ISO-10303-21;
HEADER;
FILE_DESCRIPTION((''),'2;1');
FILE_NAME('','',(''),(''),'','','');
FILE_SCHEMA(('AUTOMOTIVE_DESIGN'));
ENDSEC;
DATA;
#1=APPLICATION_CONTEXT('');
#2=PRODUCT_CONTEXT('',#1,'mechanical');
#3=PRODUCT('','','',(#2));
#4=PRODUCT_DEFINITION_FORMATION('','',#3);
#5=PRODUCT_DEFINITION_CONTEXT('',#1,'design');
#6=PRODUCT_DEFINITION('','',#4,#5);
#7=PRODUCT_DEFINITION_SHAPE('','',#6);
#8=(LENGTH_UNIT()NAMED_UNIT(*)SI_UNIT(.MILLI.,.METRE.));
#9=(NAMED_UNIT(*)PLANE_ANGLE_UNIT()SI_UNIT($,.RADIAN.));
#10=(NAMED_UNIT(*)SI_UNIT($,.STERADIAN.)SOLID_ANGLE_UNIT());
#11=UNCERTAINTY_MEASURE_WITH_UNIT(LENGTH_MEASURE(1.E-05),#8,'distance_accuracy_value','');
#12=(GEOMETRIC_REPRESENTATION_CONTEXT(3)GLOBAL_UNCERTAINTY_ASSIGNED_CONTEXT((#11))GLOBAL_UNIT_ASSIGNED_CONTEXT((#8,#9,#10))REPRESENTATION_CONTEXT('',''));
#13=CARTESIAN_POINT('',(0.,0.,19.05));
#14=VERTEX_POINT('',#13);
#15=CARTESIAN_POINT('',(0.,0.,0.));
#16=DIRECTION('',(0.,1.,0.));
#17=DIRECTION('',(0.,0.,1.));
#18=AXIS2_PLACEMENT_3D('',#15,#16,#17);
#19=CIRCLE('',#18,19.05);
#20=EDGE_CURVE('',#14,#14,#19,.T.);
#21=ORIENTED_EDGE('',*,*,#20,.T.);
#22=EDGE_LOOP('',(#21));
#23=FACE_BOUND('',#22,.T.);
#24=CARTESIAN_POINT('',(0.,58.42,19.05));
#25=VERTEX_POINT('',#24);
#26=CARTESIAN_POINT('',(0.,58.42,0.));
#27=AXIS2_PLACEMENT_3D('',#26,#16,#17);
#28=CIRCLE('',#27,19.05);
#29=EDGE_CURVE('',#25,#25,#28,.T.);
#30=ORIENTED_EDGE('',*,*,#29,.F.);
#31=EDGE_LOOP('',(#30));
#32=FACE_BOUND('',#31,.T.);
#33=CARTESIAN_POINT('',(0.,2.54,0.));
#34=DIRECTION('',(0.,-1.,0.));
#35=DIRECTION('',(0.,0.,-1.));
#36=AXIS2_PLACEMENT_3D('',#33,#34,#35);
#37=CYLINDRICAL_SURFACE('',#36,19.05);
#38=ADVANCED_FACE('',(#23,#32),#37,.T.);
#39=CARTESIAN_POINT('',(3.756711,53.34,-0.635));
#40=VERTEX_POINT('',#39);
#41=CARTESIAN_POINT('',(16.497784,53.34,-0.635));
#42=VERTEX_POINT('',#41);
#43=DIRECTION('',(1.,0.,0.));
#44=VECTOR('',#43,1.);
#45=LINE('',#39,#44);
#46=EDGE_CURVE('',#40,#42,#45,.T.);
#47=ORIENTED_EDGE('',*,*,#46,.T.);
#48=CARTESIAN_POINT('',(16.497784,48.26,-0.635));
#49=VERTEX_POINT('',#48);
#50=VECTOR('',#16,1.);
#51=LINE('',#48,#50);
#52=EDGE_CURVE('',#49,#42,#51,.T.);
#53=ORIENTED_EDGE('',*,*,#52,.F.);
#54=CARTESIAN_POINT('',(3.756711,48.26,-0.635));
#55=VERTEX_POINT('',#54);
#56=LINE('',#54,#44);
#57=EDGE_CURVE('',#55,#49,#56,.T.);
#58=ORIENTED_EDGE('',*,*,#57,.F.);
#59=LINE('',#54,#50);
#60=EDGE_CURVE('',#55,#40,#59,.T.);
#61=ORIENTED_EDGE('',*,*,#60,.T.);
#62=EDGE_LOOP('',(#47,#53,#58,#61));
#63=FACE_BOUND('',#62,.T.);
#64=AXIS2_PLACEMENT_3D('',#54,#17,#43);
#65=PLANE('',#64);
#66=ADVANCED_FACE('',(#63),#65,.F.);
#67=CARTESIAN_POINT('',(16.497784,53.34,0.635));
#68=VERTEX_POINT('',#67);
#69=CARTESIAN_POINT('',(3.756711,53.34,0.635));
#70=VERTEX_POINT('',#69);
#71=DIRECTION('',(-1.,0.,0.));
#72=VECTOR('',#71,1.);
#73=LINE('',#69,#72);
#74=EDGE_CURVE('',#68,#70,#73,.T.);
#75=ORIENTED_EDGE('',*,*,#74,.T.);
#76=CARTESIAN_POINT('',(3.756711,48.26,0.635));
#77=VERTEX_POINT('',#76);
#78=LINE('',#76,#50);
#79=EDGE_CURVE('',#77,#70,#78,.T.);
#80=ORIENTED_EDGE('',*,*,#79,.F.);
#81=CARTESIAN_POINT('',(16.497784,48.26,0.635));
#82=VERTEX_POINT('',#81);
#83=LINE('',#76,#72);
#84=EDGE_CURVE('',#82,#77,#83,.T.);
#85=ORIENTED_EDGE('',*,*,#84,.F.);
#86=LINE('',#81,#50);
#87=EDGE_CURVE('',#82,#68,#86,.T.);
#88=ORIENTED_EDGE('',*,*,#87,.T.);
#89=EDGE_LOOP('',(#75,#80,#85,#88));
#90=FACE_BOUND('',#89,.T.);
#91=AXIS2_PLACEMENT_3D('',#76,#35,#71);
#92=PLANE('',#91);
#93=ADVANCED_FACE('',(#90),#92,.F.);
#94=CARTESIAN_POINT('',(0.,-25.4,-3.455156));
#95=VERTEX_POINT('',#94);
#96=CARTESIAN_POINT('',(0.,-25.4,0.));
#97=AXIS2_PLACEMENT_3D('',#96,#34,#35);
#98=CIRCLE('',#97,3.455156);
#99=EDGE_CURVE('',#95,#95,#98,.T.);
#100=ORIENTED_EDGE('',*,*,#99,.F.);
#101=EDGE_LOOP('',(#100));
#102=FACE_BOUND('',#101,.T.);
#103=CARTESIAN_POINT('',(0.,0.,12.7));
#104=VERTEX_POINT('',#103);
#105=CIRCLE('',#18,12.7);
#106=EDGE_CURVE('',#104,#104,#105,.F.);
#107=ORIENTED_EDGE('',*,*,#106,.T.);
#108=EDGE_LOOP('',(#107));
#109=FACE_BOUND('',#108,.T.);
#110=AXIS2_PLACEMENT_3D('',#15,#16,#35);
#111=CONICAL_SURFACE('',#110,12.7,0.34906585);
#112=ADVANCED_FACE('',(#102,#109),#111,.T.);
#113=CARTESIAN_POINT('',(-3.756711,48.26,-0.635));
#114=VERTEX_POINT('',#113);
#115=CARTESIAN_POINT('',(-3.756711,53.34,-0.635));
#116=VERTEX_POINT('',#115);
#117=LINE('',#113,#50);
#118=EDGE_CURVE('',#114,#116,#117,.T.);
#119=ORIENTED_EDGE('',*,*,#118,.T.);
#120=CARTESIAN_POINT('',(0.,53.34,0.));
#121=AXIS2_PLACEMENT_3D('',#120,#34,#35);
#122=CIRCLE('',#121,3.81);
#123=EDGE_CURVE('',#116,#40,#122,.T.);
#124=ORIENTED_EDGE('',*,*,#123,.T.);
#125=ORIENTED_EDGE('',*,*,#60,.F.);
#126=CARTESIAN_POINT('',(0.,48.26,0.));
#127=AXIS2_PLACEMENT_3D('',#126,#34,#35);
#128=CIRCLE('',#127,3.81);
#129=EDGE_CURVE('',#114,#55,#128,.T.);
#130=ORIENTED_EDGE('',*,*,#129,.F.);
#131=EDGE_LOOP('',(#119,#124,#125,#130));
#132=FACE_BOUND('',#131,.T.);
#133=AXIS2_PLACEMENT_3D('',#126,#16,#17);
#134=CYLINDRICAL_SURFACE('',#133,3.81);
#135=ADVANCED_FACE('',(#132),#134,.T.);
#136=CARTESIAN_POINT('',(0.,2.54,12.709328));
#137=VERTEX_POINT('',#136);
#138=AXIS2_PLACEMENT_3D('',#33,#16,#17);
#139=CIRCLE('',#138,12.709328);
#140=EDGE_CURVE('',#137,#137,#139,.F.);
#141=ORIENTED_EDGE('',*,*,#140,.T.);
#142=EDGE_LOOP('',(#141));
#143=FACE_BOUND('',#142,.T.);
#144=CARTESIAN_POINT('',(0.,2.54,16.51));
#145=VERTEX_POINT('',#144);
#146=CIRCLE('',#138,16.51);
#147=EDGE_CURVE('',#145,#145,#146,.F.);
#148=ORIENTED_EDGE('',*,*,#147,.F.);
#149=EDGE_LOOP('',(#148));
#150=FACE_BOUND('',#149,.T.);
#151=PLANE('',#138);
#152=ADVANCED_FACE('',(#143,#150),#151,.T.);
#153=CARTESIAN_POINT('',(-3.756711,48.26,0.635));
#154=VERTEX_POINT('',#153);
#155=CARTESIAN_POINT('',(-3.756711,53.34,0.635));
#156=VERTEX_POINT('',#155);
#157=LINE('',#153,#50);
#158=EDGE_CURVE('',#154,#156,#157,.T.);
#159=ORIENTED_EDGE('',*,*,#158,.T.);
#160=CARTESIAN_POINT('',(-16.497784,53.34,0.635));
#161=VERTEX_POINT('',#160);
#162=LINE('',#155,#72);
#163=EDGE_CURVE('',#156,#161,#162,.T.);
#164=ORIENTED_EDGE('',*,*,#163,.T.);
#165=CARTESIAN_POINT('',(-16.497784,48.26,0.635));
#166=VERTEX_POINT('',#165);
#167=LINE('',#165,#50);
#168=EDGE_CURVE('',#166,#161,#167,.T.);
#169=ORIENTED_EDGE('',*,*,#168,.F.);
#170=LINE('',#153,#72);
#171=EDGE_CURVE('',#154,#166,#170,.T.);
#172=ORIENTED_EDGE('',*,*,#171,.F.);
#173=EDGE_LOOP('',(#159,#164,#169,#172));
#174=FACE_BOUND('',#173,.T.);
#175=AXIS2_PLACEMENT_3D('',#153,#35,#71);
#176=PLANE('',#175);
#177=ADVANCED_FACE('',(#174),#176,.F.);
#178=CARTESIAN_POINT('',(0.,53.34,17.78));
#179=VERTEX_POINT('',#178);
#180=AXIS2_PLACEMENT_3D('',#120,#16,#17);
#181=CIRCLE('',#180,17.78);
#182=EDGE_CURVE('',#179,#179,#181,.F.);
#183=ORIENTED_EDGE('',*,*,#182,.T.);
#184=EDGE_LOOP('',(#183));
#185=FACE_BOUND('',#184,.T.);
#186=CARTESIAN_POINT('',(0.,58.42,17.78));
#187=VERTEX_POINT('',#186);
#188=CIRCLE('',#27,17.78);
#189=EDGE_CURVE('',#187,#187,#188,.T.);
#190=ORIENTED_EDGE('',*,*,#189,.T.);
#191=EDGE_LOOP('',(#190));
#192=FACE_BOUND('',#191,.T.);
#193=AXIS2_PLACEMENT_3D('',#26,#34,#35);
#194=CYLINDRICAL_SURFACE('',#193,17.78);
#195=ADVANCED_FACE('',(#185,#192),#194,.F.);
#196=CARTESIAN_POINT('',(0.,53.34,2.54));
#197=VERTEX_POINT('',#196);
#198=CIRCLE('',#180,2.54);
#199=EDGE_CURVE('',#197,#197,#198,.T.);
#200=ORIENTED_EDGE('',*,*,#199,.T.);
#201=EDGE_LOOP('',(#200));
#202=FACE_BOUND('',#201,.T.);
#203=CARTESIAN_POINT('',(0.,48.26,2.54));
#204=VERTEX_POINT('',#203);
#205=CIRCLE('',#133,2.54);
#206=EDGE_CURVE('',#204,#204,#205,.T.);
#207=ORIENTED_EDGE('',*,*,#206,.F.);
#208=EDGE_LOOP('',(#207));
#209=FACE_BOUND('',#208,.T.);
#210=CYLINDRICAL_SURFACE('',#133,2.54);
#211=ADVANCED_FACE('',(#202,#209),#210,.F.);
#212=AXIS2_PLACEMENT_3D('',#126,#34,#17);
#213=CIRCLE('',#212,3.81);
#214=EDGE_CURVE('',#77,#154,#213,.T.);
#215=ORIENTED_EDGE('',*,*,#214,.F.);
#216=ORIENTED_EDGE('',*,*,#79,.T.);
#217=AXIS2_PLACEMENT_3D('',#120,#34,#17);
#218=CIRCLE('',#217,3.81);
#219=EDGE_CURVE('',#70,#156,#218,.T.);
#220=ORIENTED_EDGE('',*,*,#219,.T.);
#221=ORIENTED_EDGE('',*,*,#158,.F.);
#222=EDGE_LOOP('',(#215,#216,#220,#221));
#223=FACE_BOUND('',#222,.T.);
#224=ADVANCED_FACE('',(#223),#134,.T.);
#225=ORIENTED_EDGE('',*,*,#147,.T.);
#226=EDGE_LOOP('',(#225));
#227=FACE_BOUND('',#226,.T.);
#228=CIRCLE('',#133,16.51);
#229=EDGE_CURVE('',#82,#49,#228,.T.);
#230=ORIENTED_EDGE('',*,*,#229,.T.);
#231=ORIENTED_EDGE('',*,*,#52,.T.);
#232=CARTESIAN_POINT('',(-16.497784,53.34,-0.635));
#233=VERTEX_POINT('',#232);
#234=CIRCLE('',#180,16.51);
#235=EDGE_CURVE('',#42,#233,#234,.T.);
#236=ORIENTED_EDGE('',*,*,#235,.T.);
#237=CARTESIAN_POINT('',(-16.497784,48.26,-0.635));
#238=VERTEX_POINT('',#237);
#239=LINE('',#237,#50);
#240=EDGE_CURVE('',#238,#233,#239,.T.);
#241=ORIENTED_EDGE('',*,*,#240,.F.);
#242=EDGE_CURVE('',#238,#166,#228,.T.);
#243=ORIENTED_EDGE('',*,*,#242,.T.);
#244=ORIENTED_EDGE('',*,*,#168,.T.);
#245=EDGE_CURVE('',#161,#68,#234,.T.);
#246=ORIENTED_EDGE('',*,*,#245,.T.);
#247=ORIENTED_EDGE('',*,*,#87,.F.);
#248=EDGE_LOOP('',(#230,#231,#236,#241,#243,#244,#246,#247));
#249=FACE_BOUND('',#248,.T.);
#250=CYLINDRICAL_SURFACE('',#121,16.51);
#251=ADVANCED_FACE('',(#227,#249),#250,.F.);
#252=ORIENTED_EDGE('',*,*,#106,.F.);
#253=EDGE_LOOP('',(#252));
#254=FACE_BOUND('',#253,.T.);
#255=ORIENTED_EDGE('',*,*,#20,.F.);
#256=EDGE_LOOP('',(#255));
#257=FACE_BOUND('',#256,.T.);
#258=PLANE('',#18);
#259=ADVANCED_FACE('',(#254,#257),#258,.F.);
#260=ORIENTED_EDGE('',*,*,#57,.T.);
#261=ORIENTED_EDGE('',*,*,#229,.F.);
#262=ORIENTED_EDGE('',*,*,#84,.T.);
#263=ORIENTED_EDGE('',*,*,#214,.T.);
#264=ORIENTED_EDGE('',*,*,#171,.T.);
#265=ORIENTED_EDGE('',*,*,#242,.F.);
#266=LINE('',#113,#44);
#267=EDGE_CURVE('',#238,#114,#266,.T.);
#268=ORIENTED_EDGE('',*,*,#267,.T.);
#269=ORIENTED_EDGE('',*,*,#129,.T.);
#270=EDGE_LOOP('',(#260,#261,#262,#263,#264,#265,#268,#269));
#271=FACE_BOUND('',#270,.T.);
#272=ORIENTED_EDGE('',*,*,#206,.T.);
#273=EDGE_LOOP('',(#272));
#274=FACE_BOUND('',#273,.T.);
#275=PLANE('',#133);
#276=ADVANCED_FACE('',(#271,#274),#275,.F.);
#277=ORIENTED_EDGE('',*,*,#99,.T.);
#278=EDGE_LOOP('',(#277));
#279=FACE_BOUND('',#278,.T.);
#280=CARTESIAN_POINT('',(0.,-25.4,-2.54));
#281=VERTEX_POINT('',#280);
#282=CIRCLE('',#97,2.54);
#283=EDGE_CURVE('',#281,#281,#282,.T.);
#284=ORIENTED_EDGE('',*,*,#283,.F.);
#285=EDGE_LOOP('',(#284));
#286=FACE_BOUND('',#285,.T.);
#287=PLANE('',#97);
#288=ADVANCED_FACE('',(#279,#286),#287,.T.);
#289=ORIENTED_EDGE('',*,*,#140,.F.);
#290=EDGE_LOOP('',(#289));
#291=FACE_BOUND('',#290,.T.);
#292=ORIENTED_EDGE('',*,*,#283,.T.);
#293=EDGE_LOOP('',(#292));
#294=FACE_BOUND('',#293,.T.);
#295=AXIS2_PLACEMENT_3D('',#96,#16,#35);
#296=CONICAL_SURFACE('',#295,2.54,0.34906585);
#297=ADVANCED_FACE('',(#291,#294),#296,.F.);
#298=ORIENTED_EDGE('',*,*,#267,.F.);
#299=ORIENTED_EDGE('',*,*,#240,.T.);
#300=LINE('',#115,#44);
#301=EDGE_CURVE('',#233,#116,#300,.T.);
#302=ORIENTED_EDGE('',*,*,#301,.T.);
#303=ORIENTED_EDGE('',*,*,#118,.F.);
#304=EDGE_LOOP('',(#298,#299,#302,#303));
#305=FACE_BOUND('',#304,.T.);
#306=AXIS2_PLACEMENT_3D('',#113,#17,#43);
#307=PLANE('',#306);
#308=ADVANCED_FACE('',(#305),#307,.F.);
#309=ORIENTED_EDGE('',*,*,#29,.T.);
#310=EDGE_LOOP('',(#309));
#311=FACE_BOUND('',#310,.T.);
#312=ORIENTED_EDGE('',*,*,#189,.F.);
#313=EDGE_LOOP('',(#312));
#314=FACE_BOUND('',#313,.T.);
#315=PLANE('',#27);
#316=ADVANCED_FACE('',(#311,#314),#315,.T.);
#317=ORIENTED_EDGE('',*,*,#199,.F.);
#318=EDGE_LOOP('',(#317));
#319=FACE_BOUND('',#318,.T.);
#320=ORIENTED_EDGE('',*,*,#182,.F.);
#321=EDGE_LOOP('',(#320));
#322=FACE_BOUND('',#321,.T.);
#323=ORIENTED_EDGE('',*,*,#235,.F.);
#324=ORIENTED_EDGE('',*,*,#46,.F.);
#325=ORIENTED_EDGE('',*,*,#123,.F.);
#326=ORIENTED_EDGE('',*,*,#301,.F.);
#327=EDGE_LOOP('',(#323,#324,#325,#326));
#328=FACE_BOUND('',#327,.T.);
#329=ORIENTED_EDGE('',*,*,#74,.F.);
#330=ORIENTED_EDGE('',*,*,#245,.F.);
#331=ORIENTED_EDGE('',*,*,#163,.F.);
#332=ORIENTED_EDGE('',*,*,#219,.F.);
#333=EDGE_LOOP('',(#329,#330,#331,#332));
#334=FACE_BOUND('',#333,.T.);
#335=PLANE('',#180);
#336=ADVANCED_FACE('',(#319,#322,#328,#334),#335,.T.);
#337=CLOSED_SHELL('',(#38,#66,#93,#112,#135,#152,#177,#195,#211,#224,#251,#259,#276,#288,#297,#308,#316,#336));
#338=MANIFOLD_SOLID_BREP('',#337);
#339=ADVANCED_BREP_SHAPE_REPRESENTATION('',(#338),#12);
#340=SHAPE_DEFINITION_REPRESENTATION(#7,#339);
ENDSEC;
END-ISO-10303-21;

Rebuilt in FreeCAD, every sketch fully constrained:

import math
import FreeCAD as App
import Part
import Sketcher
Q = App.Units.Quantity

doc = App.newDocument("Part")
params = doc.addObject("Spreadsheet::Sheet", "Params")
for row, (alias, value) in enumerate([
    ("sketch1_diameter", "1.5 in"),
    ("pad1_length", "0.1 in"),
    ("sketch2_diameter", "1 in"),
    ("pad2_length", "1 in"),
    ("pad2_taper", "-20 deg"),
    ("sketch3_diameter", "0.2 in"),
    ("pocket1_length", "1.1 in"),
    ("pocket1_taper", "20 deg"),
    ("sketch4_diameter", "1.5 in"),
    ("sketch4_diameter2", "1.3 in"),
    ("pad3_length", "2 in"),
    ("sketch5_diameter", "1.5 in"),
    ("sketch5_diameter2", "0.2 in"),
    ("sketch5_radius", "0.15 in"),
    ("sketch5_radius2", "0.65 in"),
    ("pad4_length", "0.2 in"),
    ("sketch6_diameter", "1.5 in"),
    ("sketch6_diameter2", "1.4 in"),
    ("pad5_length", "0.2 in"),
], start=1):
    params.set(f"A{row}", alias)
    params.set(f"B{row}", "=" + value)
    params.setAlias(f"B{row}", alias)

body = doc.addObject("PartDesign::Body", "Body")

# Sketch on XZ plane
sketch1 = body.newObject("Sketcher::SketchObject", "Sketch")
sketch1.AttachmentSupport = (doc.getObject("XZ_Plane"), [""])
sketch1.MapMode = "FlatFace"
sketch1.addGeometry(Part.Circle(App.Vector(0, 0, 0), App.Vector(0, 0, 1), 19), False)
sketch1.addConstraint(Sketcher.Constraint("Coincident", 0, 3, -1, 1))
sketch1.addConstraint(Sketcher.Constraint("Diameter", 0, Q("1.5 in")))
sketch1.setExpression("Constraints[1]", "Params.sketch1_diameter")
pad1 = body.newObject("PartDesign::Pad", "Pad")
pad1.Profile = sketch1
pad1.setExpression("Length", "Params.pad1_length")
pad1.Reversed = True

# Sketch on XZ plane
sketch2 = body.newObject("Sketcher::SketchObject", "Sketch001")
sketch2.AttachmentSupport = (doc.getObject("XZ_Plane"), [""])
sketch2.MapMode = "FlatFace"
sketch2.addGeometry(Part.Circle(App.Vector(0, 0, 0), App.Vector(0, 0, 1), 13), False)
sketch2.addConstraint(Sketcher.Constraint("Coincident", 0, 3, -1, 1))
sketch2.addConstraint(Sketcher.Constraint("Diameter", 0, Q("1 in")))
sketch2.setExpression("Constraints[1]", "Params.sketch2_diameter")
pad2 = body.newObject("PartDesign::Pad", "Pad001")
pad2.Profile = sketch2
pad2.setExpression("Length", "Params.pad2_length")
pad2.setExpression("TaperAngle", "Params.pad2_taper")

# Sketch on XZ plane
sketch3 = body.newObject("Sketcher::SketchObject", "Sketch002")
sketch3.AttachmentSupport = (doc.getObject("XZ_Plane"), [""])
sketch3.MapMode = "FlatFace"
sketch3.AttachmentOffset = App.Placement(App.Vector(0, 0, 1 * 25.4), App.Rotation())
sketch3.addGeometry(Part.Circle(App.Vector(0, 0, 0), App.Vector(0, 0, 1), 2.5), False)
sketch3.addConstraint(Sketcher.Constraint("Coincident", 0, 3, -1, 1))
sketch3.addConstraint(Sketcher.Constraint("Diameter", 0, Q("0.2 in")))
sketch3.setExpression("Constraints[1]", "Params.sketch3_diameter")
pocket1 = body.newObject("PartDesign::Pocket", "Pocket")
pocket1.Profile = sketch3
pocket1.setExpression("Length", "Params.pocket1_length")
pocket1.setExpression("TaperAngle", "Params.pocket1_taper")

# Sketch on XZ plane
sketch4 = body.newObject("Sketcher::SketchObject", "Sketch003")
sketch4.AttachmentSupport = (doc.getObject("XZ_Plane"), [""])
sketch4.MapMode = "FlatFace"
sketch4.AttachmentOffset = App.Placement(App.Vector(0, 0, -0.1 * 25.4), App.Rotation())
sketch4.addGeometry(Part.Circle(App.Vector(0, 0, 0), App.Vector(0, 0, 1), 19), False)
sketch4.addGeometry(Part.Circle(App.Vector(0, 0, 0), App.Vector(0, 0, 1), 17), False)
sketch4.addConstraint(Sketcher.Constraint("Coincident", 0, 3, -1, 1))
sketch4.addConstraint(Sketcher.Constraint("Coincident", 1, 3, -1, 1))
sketch4.addConstraint(Sketcher.Constraint("Diameter", 0, Q("1.5 in")))
sketch4.addConstraint(Sketcher.Constraint("Diameter", 1, Q("1.3 in")))
sketch4.setExpression("Constraints[2]", "Params.sketch4_diameter")
sketch4.setExpression("Constraints[3]", "Params.sketch4_diameter2")
pad3 = body.newObject("PartDesign::Pad", "Pad002")
pad3.Profile = sketch4
pad3.setExpression("Length", "Params.pad3_length")
pad3.Reversed = True

# Sketch on XZ plane
sketch5 = body.newObject("Sketcher::SketchObject", "Sketch004")
sketch5.AttachmentSupport = (doc.getObject("XZ_Plane"), [""])
sketch5.MapMode = "FlatFace"
sketch5.AttachmentOffset = App.Placement(App.Vector(0, 0, -2.1 * 25.4), App.Rotation())
sketch5.addGeometry(Part.Circle(App.Vector(0, 0, 0), App.Vector(0, 0, 1), 19.1), False)
sketch5.addGeometry(Part.ArcOfCircle(Part.Circle(App.Vector(0, 0, 0), App.Vector(0, 0, 1), 3.8), math.radians(10), math.radians(170)), False)
sketch5.addGeometry(Part.LineSegment(App.Vector(3.8, 0.6, 0), App.Vector(16.5, 0.6, 0)), False)
sketch5.addGeometry(Part.ArcOfCircle(Part.Circle(App.Vector(0, 0, 0), App.Vector(0, 0, 1), 16.5), math.radians(2), math.radians(178)), False)
sketch5.addGeometry(Part.LineSegment(App.Vector(-16.5, 0.6, 0), App.Vector(-3.8, 0.6, 0)), False)
sketch5.addGeometry(Part.Circle(App.Vector(0, 0, 0), App.Vector(0, 0, 1), 2.5), False)
sketch5.addGeometry(Part.LineSegment(App.Vector(16.5, -0.6, 0), App.Vector(3.8, -0.6, 0)), False)
sketch5.addGeometry(Part.ArcOfCircle(Part.Circle(App.Vector(0, 0, 0), App.Vector(0, 0, 1), 3.8), math.radians(-170), math.radians(-10)), False)
sketch5.addGeometry(Part.LineSegment(App.Vector(-3.8, -0.6, 0), App.Vector(-16.5, -0.6, 0)), False)
sketch5.addGeometry(Part.ArcOfCircle(Part.Circle(App.Vector(0, 0, 0), App.Vector(0, 0, 1), 16.5), math.radians(-178), math.radians(-2)), False)
sketch5.addConstraint(Sketcher.Constraint("Coincident", 1, 1, 2, 1))
sketch5.addConstraint(Sketcher.Constraint("Coincident", 2, 2, 3, 1))
sketch5.addConstraint(Sketcher.Constraint("Coincident", 3, 2, 4, 1))
sketch5.addConstraint(Sketcher.Constraint("Coincident", 4, 2, 1, 2))
sketch5.addConstraint(Sketcher.Constraint("Coincident", 6, 2, 7, 2))
sketch5.addConstraint(Sketcher.Constraint("Coincident", 7, 1, 8, 1))
sketch5.addConstraint(Sketcher.Constraint("Coincident", 8, 2, 9, 1))
sketch5.addConstraint(Sketcher.Constraint("Coincident", 9, 2, 6, 1))
sketch5.addConstraint(Sketcher.Constraint("Horizontal", 2))
sketch5.addConstraint(Sketcher.Constraint("Horizontal", 4))
sketch5.addConstraint(Sketcher.Constraint("Horizontal", 6))
sketch5.addConstraint(Sketcher.Constraint("Horizontal", 8))
sketch5.addConstraint(Sketcher.Constraint("Coincident", 0, 3, -1, 1))
sketch5.addConstraint(Sketcher.Constraint("Coincident", 1, 3, -1, 1))
sketch5.addConstraint(Sketcher.Constraint("Coincident", 3, 3, -1, 1))
sketch5.addConstraint(Sketcher.Constraint("Coincident", 5, 3, -1, 1))
sketch5.addConstraint(Sketcher.Constraint("Coincident", 7, 3, -1, 1))
sketch5.addConstraint(Sketcher.Constraint("Coincident", 9, 3, -1, 1))
sketch5.addConstraint(Sketcher.Constraint("Equal", 1, 7))
sketch5.addConstraint(Sketcher.Constraint("Equal", 3, 9))
sketch5.addConstraint(Sketcher.Constraint("Horizontal", 2, 2, 3, 2))
sketch5.addConstraint(Sketcher.Constraint("Horizontal", 6, 2, 7, 1))
sketch5.addConstraint(Sketcher.Constraint("Vertical", 1, 1, 6, 2))
sketch5.addConstraint(Sketcher.Constraint("Diameter", 0, Q("1.5 in")))
sketch5.addConstraint(Sketcher.Constraint("Diameter", 5, Q("0.2 in")))
sketch5.addConstraint(Sketcher.Constraint("Radius", 1, Q("0.15 in")))
sketch5.addConstraint(Sketcher.Constraint("Radius", 3, Q("0.65 in")))
sketch5.addConstraint(Sketcher.Constraint("DistanceY", 6, 2, 1, 1, Q("0.05 in")))
sketch5.setExpression("Constraints[23]", "Params.sketch5_diameter")
sketch5.setExpression("Constraints[24]", "Params.sketch5_diameter2")
sketch5.setExpression("Constraints[25]", "Params.sketch5_radius")
sketch5.setExpression("Constraints[26]", "Params.sketch5_radius2")
pad4 = body.newObject("PartDesign::Pad", "Pad003")
pad4.Profile = sketch5
pad4.setExpression("Length", "Params.pad4_length")

# Sketch on XZ plane
sketch6 = body.newObject("Sketcher::SketchObject", "Sketch005")
sketch6.AttachmentSupport = (doc.getObject("XZ_Plane"), [""])
sketch6.MapMode = "FlatFace"
sketch6.AttachmentOffset = App.Placement(App.Vector(0, 0, -2.1 * 25.4), App.Rotation())
sketch6.addGeometry(Part.Circle(App.Vector(0, 0, 0), App.Vector(0, 0, 1), 19), False)
sketch6.addGeometry(Part.Circle(App.Vector(0, 0, 0), App.Vector(0, 0, 1), 18), False)
sketch6.addConstraint(Sketcher.Constraint("Coincident", 0, 3, -1, 1))
sketch6.addConstraint(Sketcher.Constraint("Coincident", 1, 3, -1, 1))
sketch6.addConstraint(Sketcher.Constraint("Diameter", 0, Q("1.5 in")))
sketch6.addConstraint(Sketcher.Constraint("Diameter", 1, Q("1.4 in")))
sketch6.setExpression("Constraints[2]", "Params.sketch6_diameter")
sketch6.setExpression("Constraints[3]", "Params.sketch6_diameter2")
pad5 = body.newObject("PartDesign::Pad", "Pad004")
pad5.Profile = sketch6
pad5.setExpression("Length", "Params.pad5_length")
pad5.Reversed = True

doc.recompute()
